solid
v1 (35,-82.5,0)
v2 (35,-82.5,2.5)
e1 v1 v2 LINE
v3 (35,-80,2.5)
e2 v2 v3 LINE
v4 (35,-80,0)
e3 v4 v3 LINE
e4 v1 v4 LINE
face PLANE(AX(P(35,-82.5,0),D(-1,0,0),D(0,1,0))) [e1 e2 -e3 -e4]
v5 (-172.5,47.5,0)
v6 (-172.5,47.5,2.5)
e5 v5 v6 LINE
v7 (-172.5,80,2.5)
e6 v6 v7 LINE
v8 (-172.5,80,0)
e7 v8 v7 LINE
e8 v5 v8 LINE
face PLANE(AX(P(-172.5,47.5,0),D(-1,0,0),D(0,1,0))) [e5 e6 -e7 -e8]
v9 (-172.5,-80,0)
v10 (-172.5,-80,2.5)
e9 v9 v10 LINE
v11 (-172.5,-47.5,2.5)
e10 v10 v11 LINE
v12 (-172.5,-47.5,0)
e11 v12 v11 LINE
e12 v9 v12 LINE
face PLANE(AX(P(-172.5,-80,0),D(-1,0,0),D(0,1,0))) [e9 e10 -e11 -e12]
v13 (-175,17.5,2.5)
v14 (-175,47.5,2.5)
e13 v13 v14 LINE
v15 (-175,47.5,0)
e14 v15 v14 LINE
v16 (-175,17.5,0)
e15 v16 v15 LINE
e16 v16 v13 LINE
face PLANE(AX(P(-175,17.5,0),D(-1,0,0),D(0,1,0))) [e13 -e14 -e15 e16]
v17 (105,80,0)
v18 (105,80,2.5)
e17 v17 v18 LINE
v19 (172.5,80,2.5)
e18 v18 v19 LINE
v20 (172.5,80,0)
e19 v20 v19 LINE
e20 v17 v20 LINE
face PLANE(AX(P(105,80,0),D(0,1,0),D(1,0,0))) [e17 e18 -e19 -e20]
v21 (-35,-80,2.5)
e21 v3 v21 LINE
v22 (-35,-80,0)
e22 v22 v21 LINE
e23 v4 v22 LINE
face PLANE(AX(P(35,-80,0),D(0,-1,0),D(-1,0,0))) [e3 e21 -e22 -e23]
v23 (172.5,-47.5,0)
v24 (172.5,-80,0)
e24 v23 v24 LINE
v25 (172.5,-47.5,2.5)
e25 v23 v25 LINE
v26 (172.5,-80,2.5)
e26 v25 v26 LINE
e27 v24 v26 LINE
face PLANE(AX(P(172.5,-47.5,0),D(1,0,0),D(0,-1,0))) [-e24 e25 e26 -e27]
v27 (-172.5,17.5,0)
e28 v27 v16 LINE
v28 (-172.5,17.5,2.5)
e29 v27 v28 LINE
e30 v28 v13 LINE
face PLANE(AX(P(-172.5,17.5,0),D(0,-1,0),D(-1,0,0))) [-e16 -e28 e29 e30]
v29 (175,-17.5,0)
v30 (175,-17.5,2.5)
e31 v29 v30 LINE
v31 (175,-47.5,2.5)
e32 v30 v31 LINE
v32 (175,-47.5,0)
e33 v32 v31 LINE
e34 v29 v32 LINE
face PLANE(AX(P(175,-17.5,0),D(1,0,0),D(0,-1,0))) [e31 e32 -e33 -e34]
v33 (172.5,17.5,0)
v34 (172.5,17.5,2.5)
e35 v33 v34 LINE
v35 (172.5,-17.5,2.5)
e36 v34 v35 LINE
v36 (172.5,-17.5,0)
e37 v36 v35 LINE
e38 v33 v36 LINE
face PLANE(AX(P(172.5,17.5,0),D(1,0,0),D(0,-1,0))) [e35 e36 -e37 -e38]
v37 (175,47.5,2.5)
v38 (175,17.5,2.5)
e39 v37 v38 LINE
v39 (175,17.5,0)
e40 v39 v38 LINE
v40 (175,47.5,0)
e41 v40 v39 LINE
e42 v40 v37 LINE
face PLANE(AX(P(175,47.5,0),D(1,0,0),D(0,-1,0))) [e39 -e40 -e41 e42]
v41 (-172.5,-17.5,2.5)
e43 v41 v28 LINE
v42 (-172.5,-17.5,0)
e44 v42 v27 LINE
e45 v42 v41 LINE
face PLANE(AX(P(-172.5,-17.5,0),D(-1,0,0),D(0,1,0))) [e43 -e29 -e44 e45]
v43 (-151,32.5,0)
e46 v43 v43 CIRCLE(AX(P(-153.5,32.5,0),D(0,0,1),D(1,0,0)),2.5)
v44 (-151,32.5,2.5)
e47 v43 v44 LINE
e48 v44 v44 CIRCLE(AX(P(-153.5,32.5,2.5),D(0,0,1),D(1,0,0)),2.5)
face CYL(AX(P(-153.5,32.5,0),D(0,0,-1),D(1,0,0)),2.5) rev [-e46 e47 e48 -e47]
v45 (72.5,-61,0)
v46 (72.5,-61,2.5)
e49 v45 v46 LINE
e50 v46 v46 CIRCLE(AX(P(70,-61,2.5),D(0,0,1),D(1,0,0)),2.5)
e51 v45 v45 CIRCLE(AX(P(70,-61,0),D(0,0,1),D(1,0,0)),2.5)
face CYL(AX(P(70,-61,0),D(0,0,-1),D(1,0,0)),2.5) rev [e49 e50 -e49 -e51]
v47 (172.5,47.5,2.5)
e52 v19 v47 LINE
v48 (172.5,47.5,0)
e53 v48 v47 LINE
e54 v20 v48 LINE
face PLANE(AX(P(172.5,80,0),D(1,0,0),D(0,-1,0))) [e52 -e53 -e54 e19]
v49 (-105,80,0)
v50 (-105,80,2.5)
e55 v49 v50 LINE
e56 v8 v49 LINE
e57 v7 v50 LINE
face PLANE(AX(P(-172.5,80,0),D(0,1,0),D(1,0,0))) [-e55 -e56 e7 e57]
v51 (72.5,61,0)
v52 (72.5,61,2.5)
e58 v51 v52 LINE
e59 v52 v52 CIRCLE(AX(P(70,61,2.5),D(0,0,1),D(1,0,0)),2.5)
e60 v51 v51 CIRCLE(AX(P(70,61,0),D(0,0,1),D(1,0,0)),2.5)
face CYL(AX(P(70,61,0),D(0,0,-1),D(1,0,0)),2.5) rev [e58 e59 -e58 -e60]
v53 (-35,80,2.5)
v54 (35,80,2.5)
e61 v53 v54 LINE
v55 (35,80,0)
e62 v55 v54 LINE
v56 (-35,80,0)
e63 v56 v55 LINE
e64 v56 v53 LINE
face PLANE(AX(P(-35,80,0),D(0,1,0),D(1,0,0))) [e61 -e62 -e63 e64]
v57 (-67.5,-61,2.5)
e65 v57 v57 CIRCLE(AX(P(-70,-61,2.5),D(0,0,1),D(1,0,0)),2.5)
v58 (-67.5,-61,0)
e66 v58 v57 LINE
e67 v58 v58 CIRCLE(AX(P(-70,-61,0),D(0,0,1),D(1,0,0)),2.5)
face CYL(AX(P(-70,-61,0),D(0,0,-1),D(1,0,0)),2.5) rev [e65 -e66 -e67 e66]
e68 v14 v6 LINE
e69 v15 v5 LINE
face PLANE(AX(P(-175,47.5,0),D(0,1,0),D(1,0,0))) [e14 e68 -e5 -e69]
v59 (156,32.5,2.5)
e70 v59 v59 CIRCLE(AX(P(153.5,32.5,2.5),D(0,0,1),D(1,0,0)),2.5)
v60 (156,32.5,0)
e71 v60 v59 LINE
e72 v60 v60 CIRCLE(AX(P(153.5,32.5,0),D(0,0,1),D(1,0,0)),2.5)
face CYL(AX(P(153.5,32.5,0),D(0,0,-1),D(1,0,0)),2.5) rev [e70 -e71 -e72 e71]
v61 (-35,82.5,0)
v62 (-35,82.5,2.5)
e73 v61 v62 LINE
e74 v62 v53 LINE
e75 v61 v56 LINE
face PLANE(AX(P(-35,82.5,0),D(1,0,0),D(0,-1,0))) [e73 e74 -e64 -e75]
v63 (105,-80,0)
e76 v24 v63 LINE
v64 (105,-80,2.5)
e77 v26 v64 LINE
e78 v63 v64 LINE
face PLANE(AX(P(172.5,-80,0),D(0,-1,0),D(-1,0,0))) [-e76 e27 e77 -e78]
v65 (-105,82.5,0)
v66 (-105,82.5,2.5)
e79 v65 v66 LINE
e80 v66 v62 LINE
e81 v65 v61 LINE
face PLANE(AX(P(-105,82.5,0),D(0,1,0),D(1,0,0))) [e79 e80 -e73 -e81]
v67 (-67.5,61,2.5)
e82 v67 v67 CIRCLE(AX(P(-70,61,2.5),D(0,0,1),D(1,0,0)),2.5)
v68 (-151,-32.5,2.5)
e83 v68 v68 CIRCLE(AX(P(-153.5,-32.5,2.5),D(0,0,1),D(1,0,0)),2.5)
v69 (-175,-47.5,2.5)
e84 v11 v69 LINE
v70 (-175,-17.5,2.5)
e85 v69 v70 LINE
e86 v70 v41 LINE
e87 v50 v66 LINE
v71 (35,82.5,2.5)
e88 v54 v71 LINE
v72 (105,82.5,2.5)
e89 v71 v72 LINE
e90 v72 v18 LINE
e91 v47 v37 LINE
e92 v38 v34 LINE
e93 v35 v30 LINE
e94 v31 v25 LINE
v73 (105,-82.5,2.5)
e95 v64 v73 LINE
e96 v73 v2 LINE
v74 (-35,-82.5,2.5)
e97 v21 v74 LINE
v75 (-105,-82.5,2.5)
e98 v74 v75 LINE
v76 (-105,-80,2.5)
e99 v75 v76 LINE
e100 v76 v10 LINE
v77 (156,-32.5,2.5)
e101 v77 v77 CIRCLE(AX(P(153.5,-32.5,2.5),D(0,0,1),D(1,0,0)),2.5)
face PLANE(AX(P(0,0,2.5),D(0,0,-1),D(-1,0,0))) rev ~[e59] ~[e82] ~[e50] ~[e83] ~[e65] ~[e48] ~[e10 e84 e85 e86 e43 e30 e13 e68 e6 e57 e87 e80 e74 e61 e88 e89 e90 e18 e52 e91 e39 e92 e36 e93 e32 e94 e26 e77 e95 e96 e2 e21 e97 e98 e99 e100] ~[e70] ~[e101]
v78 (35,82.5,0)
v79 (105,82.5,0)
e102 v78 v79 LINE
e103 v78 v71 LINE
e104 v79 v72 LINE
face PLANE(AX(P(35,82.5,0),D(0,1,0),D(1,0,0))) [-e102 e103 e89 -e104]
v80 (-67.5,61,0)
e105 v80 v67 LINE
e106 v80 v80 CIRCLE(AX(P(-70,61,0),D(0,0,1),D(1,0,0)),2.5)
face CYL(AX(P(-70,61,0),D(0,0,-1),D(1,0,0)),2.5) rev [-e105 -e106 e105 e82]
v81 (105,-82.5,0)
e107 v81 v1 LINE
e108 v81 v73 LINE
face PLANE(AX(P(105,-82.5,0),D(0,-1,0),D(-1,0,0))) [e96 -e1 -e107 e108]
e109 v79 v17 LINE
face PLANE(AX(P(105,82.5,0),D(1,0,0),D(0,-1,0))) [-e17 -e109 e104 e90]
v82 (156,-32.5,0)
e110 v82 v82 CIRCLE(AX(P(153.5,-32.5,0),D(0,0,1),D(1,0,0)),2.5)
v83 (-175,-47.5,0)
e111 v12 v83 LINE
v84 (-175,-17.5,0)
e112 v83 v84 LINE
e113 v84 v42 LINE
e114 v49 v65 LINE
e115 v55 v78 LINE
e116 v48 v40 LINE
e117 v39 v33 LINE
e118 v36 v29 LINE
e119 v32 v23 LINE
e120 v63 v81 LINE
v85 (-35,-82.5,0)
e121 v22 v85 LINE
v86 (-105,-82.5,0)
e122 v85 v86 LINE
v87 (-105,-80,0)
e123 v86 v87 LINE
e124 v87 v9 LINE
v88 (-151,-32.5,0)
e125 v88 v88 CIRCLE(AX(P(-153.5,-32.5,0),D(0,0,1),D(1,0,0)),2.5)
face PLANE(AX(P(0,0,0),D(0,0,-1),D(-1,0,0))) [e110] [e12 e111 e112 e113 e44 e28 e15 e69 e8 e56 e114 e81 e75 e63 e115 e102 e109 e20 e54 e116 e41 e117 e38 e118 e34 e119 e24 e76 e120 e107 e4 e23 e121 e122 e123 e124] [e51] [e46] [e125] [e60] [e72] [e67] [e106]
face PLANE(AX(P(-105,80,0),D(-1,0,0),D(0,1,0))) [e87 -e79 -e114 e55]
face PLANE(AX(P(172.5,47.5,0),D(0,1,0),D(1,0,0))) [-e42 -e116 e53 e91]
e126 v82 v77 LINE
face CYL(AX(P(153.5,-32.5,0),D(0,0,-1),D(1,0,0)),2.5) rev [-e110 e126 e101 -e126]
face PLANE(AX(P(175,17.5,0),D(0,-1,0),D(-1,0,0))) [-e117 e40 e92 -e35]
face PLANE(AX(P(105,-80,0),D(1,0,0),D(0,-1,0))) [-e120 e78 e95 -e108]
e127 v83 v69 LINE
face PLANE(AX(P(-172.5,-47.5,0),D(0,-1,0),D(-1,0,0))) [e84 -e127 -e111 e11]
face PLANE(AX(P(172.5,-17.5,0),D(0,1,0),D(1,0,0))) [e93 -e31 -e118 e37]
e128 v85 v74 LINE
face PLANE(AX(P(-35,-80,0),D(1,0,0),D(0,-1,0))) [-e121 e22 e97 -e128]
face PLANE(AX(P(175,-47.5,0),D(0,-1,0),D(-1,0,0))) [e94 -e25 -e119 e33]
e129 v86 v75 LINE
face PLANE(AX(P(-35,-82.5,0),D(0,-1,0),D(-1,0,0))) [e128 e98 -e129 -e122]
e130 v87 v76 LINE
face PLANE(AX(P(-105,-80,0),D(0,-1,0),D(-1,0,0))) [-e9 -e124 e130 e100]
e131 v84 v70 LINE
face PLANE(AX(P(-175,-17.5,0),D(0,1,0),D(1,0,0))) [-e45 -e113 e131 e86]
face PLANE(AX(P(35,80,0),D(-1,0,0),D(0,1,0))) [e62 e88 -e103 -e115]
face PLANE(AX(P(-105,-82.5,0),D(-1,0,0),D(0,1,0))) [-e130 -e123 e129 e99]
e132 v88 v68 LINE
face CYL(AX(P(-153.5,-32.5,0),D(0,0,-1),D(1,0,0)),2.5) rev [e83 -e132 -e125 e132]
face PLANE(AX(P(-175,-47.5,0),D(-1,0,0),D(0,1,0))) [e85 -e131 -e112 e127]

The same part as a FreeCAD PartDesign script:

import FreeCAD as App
import Part
import Sketcher
from FreeCAD import Vector


def add_polygon(sketch, points):
    """Adds a closed chain of lines whose ends are joined by coincident constraints."""
    first, n = sketch.GeometryCount, len(points)
    for a, b in zip(points, points[1:] + points[:1]):
        sketch.addGeometry(Part.LineSegment(App.Vector(*a, 0), App.Vector(*b, 0)), False)
    for i in range(n):
        sketch.addConstraint(Sketcher.Constraint("Coincident", first + i, 2, first + (i + 1) % n, 1))

doc = App.newDocument("Part")
body = doc.addObject("PartDesign::Body", "Body")

# Sketch on XY plane
sketch1 = body.newObject("Sketcher::SketchObject", "Sketch")
sketch1.AttachmentSupport = (doc.getObject("XY_Plane"), [""])
sketch1.MapMode = "FlatFace"
add_polygon(sketch1, [(-105, 80), (-172.5, 80), (-172.5, 47.5), (-175, 47.5), (-175, 17.5), (-172.5, 17.5), (-172.5, -17.5), (-175, -17.5), (-175, -47.5), (-172.5, -47.5), (-172.5, -80), (-105, -80), (-105, -82.5), (-35, -82.5), (-35, -80), (35, -80), (35, -82.5), (105, -82.5), (105, -80), (172.5, -80), (172.5, -47.5), (175, -47.5), (175, -17.5), (172.5, -17.5), (172.5, 17.5), (175, 17.5), (175, 47.5), (172.5, 47.5), (172.5, 80), (105, 80), (105, 82.5), (35, 82.5), (35, 80), (-35, 80), (-35, 82.5), (-105, 82.5)])  # lines 0-35
sketch1.addGeometry(Part.Circle(Vector(153.5, -32.5, 0), Vector(0, 0, 1), 2.5), False)  # 36
sketch1.addGeometry(Part.Circle(Vector(70, -61, 0), Vector(0, 0, 1), 2.5), False)  # 37
sketch1.addGeometry(Part.Circle(Vector(-70, -61, 0), Vector(0, 0, 1), 2.5), False)  # 38
sketch1.addGeometry(Part.Circle(Vector(-153.5, -32.5, 0), Vector(0, 0, 1), 2.5), False)  # 39
sketch1.addGeometry(Part.Circle(Vector(153.5, 32.5, 0), Vector(0, 0, 1), 2.5), False)  # 40
sketch1.addGeometry(Part.Circle(Vector(70, 61, 0), Vector(0, 0, 1), 2.5), False)  # 41
sketch1.addGeometry(Part.Circle(Vector(-70, 61, 0), Vector(0, 0, 1), 2.5), False)  # 42
sketch1.addGeometry(Part.Circle(Vector(-153.5, 32.5, 0), Vector(0, 0, 1), 2.5), False)  # 43
sketch1.addConstraint([
    Sketcher.Constraint("Horizontal", 0),
    Sketcher.Constraint("Vertical", 1),
    Sketcher.Constraint("Horizontal", 2),
    Sketcher.Constraint("Vertical", 3),
    Sketcher.Constraint("Horizontal", 4),
    Sketcher.Constraint("Vertical", 5),
    Sketcher.Constraint("Horizontal", 6),
    Sketcher.Constraint("Vertical", 7),
    Sketcher.Constraint("Horizontal", 8),
    Sketcher.Constraint("Vertical", 9),
    Sketcher.Constraint("Horizontal", 10),
    Sketcher.Constraint("Vertical", 11),
    Sketcher.Constraint("Horizontal", 12),
    Sketcher.Constraint("Vertical", 13),
    Sketcher.Constraint("Horizontal", 14),
    Sketcher.Constraint("Vertical", 15),
    Sketcher.Constraint("Horizontal", 16),
    Sketcher.Constraint("Vertical", 17),
    Sketcher.Constraint("Horizontal", 18),
    Sketcher.Constraint("Vertical", 19),
    Sketcher.Constraint("Horizontal", 20),
    Sketcher.Constraint("Vertical", 21),
    Sketcher.Constraint("Horizontal", 22),
    Sketcher.Constraint("Vertical", 23),
    Sketcher.Constraint("Horizontal", 24),
    Sketcher.Constraint("Vertical", 25),
    Sketcher.Constraint("Horizontal", 26),
    Sketcher.Constraint("Vertical", 27),
    Sketcher.Constraint("Horizontal", 28),
    Sketcher.Constraint("Vertical", 29),
    Sketcher.Constraint("Horizontal", 30),
    Sketcher.Constraint("Vertical", 31),
    Sketcher.Constraint("Horizontal", 32),
    Sketcher.Constraint("Vertical", 33),
    Sketcher.Constraint("Horizontal", 34),
    Sketcher.Constraint("Vertical", 35),
    Sketcher.Constraint("Equal", 36, 37),
    Sketcher.Constraint("Equal", 37, 38),
    Sketcher.Constraint("Equal", 38, 39),
    Sketcher.Constraint("Equal", 39, 40),
    Sketcher.Constraint("Equal", 40, 41),
    Sketcher.Constraint("Equal", 41, 42),
    Sketcher.Constraint("Equal", 42, 43),
    Sketcher.Constraint("Symmetric", 39, 3, 40, 3, -1, 1),
    Sketcher.Constraint("Symmetric", 38, 3, 41, 3, -1, 1),
    Sketcher.Constraint("Symmetric", 37, 3, 42, 3, -1, 1),
    Sketcher.Constraint("Symmetric", 36, 3, 43, 3, -1, 1),
    Sketcher.Constraint("Symmetric", 0, 2, 18, 2, -1, 1),
    Sketcher.Constraint("Symmetric", 2, 2, 20, 2, -1, 1),
    Sketcher.Constraint("Symmetric", 4, 2, 22, 2, -1, 1),
    Sketcher.Constraint("Symmetric", 6, 2, 24, 2, -1, 1),
    Sketcher.Constraint("Symmetric", 8, 2, 26, 2, -1, 1),
    Sketcher.Constraint("Symmetric", 10, 2, 28, 2, -1, 1),
    Sketcher.Constraint("Symmetric", 12, 2, 30, 2, -1, 1),
    Sketcher.Constraint("Symmetric", 14, 2, 32, 2, -1, 1),
    Sketcher.Constraint("Symmetric", 16, 2, 34, 2, -1, 1),
    Sketcher.Constraint("Symmetric", 37, 3, 38, 3, -2),
    Sketcher.Constraint("Symmetric", 36, 3, 39, 3, -2),
    Sketcher.Constraint("Symmetric", 12, 2, 15, 2, -2),
    Sketcher.Constraint("Symmetric", 10, 2, 17, 2, -2),
    Sketcher.Constraint("Symmetric", 8, 2, 19, 2, -2),
    Sketcher.Constraint("Symmetric", 6, 2, 21, 2, -2),
    Sketcher.Constraint("Horizontal", 10, 2, 13, 2),
    Sketcher.Constraint("Vertical", 1, 2, 4, 2),
    Sketcher.Constraint("Equal", 12, 14),
    Sketcher.Constraint("Equal", 26, 11),
    Sketcher.Constraint("Diameter", 36, 5.0),
    Sketcher.Constraint("DistanceX", 12, 1, 12, 2, 70.0),
    Sketcher.Constraint("DistanceY", 3, 2, 3, 1, 30.0),
    Sketcher.Constraint("DistanceY", 5, 2, 5, 1, 35.0),
    Sketcher.Constraint("DistanceX", 0, 2, 0, 1, 67.5),
    Sketcher.Constraint("DistanceX", 2, 2, 2, 1, 2.5),
    Sketcher.Constraint("DistanceY", 1, 2, 1, 1, 32.5),
    Sketcher.Constraint("DistanceX", -1, 1, 37, 3, 70.0),
    Sketcher.Constraint("DistanceY", 37, 3, -1, 1, 61.0),
    Sketcher.Constraint("DistanceX", 39, 3, 36, 3, 307.0),
    Sketcher.Constraint("DistanceY", 36, 3, 40, 3, 65.0),
])
pad1 = body.newObject("PartDesign::Pad", "Pad")
pad1.Profile = sketch1
pad1.Length = 2.5

doc.recompute()
